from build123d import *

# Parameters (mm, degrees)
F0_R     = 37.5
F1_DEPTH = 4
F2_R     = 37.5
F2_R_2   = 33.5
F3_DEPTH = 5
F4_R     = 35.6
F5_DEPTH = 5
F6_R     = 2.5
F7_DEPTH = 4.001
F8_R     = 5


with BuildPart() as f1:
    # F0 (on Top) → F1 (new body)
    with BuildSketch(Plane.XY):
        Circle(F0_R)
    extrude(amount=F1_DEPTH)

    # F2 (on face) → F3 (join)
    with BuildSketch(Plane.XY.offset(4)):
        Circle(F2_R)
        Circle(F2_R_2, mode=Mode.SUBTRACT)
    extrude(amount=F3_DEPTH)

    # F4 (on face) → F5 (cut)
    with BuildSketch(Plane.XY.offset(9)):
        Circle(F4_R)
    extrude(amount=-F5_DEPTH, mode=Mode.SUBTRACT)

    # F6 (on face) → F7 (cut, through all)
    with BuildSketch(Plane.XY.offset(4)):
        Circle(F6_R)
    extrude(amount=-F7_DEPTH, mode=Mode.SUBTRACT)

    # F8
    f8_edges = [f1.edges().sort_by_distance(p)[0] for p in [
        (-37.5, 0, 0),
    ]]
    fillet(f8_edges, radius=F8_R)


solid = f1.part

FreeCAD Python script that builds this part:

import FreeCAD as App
import Part
import Sketcher
Q = App.Units.Quantity


def edges_at(feature, points):
    """Names of the edges that pass closest to the given points."""
    edges = feature.Shape.Edges
    near = lambda p: min(range(len(edges)), key=lambda i: edges[i].distToShape(Part.Vertex(*p))[0])
    return sorted({f"Edge{near(p) + 1}" for p in points})

doc = App.newDocument("Part")
params = doc.addObject("Spreadsheet::Sheet", "Params")
for row, (alias, value) in enumerate([
    ("sketch1_diameter", "75 mm"),
    ("pad1_length", "4 mm"),
    ("sketch2_diameter", "75 mm"),
    ("sketch2_diameter2", "67 mm"),
    ("pad2_length", "5 mm"),
    ("sketch3_diameter", "71.2 mm"),
    ("pocket1_length", "5 mm"),
    ("sketch4_diameter", "5 mm"),
    ("fillet_radius", "5 mm"),
], start=1):
    params.set(f"A{row}", alias)
    params.set(f"B{row}", "=" + value)
    params.setAlias(f"B{row}", alias)

body = doc.addObject("PartDesign::Body", "Body")

# Sketch on XY plane
sketch1 = body.newObject("Sketcher::SketchObject", "Sketch")
sketch1.AttachmentSupport = (doc.getObject("XY_Plane"), [""])
sketch1.MapMode = "FlatFace"
sketch1.addGeometry(Part.Circle(App.Vector(0, 0, 0), App.Vector(0, 0, 1), 38), False)
sketch1.addConstraint(Sketcher.Constraint("Coincident", 0, 3, -1, 1))
sketch1.addConstraint(Sketcher.Constraint("Diameter", 0, Q("75 mm")))
sketch1.setExpression("Constraints[1]", "Params.sketch1_diameter")
pad1 = body.newObject("PartDesign::Pad", "Pad")
pad1.Profile = sketch1
pad1.setExpression("Length", "Params.pad1_length")

# Sketch on XY plane
sketch2 = body.newObject("Sketcher::SketchObject", "Sketch001")
sketch2.AttachmentSupport = (doc.getObject("XY_Plane"), [""])
sketch2.MapMode = "FlatFace"
sketch2.AttachmentOffset = App.Placement(App.Vector(0, 0, 4), App.Rotation())
sketch2.addGeometry(Part.Circle(App.Vector(0, 0, 0), App.Vector(0, 0, 1), 38), False)
sketch2.addGeometry(Part.Circle(App.Vector(0, 0, 0), App.Vector(0, 0, 1), 34), False)
sketch2.addConstraint(Sketcher.Constraint("Coincident", 0, 3, -1, 1))
sketch2.addConstraint(Sketcher.Constraint("Coincident", 1, 3, -1, 1))
sketch2.addConstraint(Sketcher.Constraint("Diameter", 0, Q("75 mm")))
sketch2.addConstraint(Sketcher.Constraint("Diameter", 1, Q("67 mm")))
sketch2.setExpression("Constraints[2]", "Params.sketch2_diameter")
sketch2.setExpression("Constraints[3]", "Params.sketch2_diameter2")
pad2 = body.newObject("PartDesign::Pad", "Pad001")
pad2.Profile = sketch2
pad2.setExpression("Length", "Params.pad2_length")

# Sketch on XY plane
sketch3 = body.newObject("Sketcher::SketchObject", "Sketch002")
sketch3.AttachmentSupport = (doc.getObject("XY_Plane"), [""])
sketch3.MapMode = "FlatFace"
sketch3.AttachmentOffset = App.Placement(App.Vector(0, 0, 9), App.Rotation())
sketch3.addGeometry(Part.Circle(App.Vector(0, 0, 0), App.Vector(0, 0, 1), 36), False)
sketch3.addConstraint(Sketcher.Constraint("Coincident", 0, 3, -1, 1))
sketch3.addConstraint(Sketcher.Constraint("Diameter", 0, Q("71.2 mm")))
sketch3.setExpression("Constraints[1]", "Params.sketch3_diameter")
pocket1 = body.newObject("PartDesign::Pocket", "Pocket")
pocket1.Profile = sketch3
pocket1.setExpression("Length", "Params.pocket1_length")

# Sketch on XY plane
sketch4 = body.newObject("Sketcher::SketchObject", "Sketch003")
sketch4.AttachmentSupport = (doc.getObject("XY_Plane"), [""])
sketch4.MapMode = "FlatFace"
sketch4.AttachmentOffset = App.Placement(App.Vector(0, 0, 4), App.Rotation())
sketch4.addGeometry(Part.Circle(App.Vector(0, 0, 0), App.Vector(0, 0, 1), 2.5), False)
sketch4.addConstraint(Sketcher.Constraint("Coincident", 0, 3, -1, 1))
sketch4.addConstraint(Sketcher.Constraint("Diameter", 0, Q("5 mm")))
sketch4.setExpression("Constraints[1]", "Params.sketch4_diameter")
pocket2 = body.newObject("PartDesign::Pocket", "Pocket001")
pocket2.Profile = sketch4
pocket2.Type = "ThroughAll"
doc.recompute()

fillet = body.newObject("PartDesign::Fillet", "Fillet")
fillet.Base = (pocket2, edges_at(pocket2, [(-37.5, 0, 0)]))
fillet.setExpression("Radius", "Params.fillet_radius")

doc.recompute()
